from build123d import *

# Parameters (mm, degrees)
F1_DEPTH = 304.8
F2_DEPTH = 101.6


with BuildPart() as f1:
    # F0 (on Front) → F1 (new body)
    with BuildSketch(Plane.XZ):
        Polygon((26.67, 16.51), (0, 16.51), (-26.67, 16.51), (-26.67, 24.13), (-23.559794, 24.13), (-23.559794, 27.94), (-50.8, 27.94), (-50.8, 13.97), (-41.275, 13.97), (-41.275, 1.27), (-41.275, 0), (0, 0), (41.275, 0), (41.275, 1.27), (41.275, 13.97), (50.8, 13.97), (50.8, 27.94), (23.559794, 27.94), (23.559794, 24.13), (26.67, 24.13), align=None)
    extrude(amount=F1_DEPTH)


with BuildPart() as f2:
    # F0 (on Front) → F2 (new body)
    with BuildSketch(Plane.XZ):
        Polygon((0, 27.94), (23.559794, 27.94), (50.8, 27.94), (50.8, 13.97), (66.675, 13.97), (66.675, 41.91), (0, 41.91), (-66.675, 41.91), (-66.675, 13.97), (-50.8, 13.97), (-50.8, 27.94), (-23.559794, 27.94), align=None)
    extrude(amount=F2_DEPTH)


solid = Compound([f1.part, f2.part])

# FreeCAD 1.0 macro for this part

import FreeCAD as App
import Part
import Sketcher
from FreeCAD import Vector
Q = App.Units.Quantity


def add_polygon(sketch, points):
    """Adds a closed chain of lines whose ends are joined by coincident constraints."""
    first, n = sketch.GeometryCount, len(points)
    for a, b in zip(points, points[1:] + points[:1]):
        sketch.addGeometry(Part.LineSegment(App.Vector(*a, 0), App.Vector(*b, 0)), False)
    for i in range(n):
        sketch.addConstraint(Sketcher.Constraint("Coincident", first + i, 2, first + (i + 1) % n, 1))

doc = App.newDocument("Part")
params = doc.addObject("Spreadsheet::Sheet", "Params")
for row, (alias, value) in enumerate([
    ("sketch1_width", "2.1 in"),
    ("sketch1_height", "0.3 in"),
    ("sketch1_width2", "3.25 in"),
    ("sketch1_height2", "0.15 in"),
    ("sketch1_height3", "0.55 in"),
    ("pad1_length", "12 in"),
    ("sketch2_width", "4 in"),
    ("sketch2_height", "1.1 in"),
    ("sketch2_width2", "5.25 in"),
    ("sketch2_height2", "0.55 in"),
    ("pad2_length", "4 in"),
], start=1):
    params.set(f"A{row}", alias)
    params.set(f"B{row}", "=" + value)
    params.setAlias(f"B{row}", alias)

body = doc.addObject("PartDesign::Body", "Body")

# Sketch on XZ plane
sketch1 = body.newObject("Sketcher::SketchObject", "Sketch")
sketch1.AttachmentSupport = (doc.getObject("XZ_Plane"), [""])
sketch1.MapMode = "FlatFace"
add_polygon(sketch1, [(26.7, 16.5), (-26.7, 16.5), (-26.7, 24.1), (-23.6, 24.1), (-23.6, 27.9), (-50.8, 27.9), (-50.8, 14), (-41.3, 14), (-41.3, 0), (41.3, 0), (41.3, 14), (50.8, 14), (50.8, 27.9), (23.6, 27.9), (23.6, 24.1), (26.7, 24.1)])  # lines 0-15
sketch1.addConstraint(Sketcher.Constraint("Horizontal", 0))
sketch1.addConstraint(Sketcher.Constraint("Vertical", 1))
sketch1.addConstraint(Sketcher.Constraint("Horizontal", 2))
sketch1.addConstraint(Sketcher.Constraint("Vertical", 3))
sketch1.addConstraint(Sketcher.Constraint("Horizontal", 4))
sketch1.addConstraint(Sketcher.Constraint("Vertical", 5))
sketch1.addConstraint(Sketcher.Constraint("Horizontal", 6))
sketch1.addConstraint(Sketcher.Constraint("Vertical", 7))
sketch1.addConstraint(Sketcher.Constraint("Horizontal", 8))
sketch1.addConstraint(Sketcher.Constraint("Vertical", 9))
sketch1.addConstraint(Sketcher.Constraint("Horizontal", 10))
sketch1.addConstraint(Sketcher.Constraint("Vertical", 11))
sketch1.addConstraint(Sketcher.Constraint("Horizontal", 12))
sketch1.addConstraint(Sketcher.Constraint("Vertical", 13))
sketch1.addConstraint(Sketcher.Constraint("Horizontal", 14))
sketch1.addConstraint(Sketcher.Constraint("Vertical", 15))
sketch1.addConstraint(Sketcher.Constraint("Symmetric", 7, 2, 8, 2, -1, 1))
sketch1.addConstraint(Sketcher.Constraint("Symmetric", 5, 2, 10, 2, -2))
sketch1.addConstraint(Sketcher.Constraint("Symmetric", 3, 2, 12, 2, -2))
sketch1.addConstraint(Sketcher.Constraint("Symmetric", 1, 2, 14, 2, -2))
sketch1.addConstraint(Sketcher.Constraint("Equal", 5, 7))
sketch1.addConstraint(Sketcher.Constraint("DistanceX", 0, 2, 0, 1, Q("2.1 in")))
sketch1.addConstraint(Sketcher.Constraint("DistanceY", 1, 1, 1, 2, Q("0.3 in")))
sketch1.addConstraint(Sketcher.Constraint("DistanceX", 4, 2, -1, 1, Q("2 in")))
sketch1.addConstraint(Sketcher.Constraint("DistanceX", 8, 1, 8, 2, Q("3.25 in")))
sketch1.addConstraint(Sketcher.Constraint("DistanceY", 3, 1, 3, 2, Q("0.15 in")))
sketch1.addConstraint(Sketcher.Constraint("DistanceY", 5, 2, 5, 1, Q("0.55 in")))
sketch1.addConstraint(Sketcher.Constraint("DistanceX", 2, 1, 2, 2, Q("3.110206 mm")))
sketch1.setExpression("Constraints[37]", "Params.sketch1_width")
sketch1.setExpression("Constraints[38]", "Params.sketch1_height")
sketch1.setExpression("Constraints[40]", "Params.sketch1_width2")
sketch1.setExpression("Constraints[41]", "Params.sketch1_height2")
sketch1.setExpression("Constraints[42]", "Params.sketch1_height3")
pad1 = body.newObject("PartDesign::Pad", "Pad")
pad1.Profile = sketch1
pad1.setExpression("Length", "Params.pad1_length")
body2 = doc.addObject("PartDesign::Body", "Body001")

# Sketch on XZ plane
sketch2 = body2.newObject("Sketcher::SketchObject", "Sketch001")
sketch2.AttachmentSupport = (doc.getObject("XZ_Plane001"), [""])
sketch2.MapMode = "FlatFace"
add_polygon(sketch2, [(51, 28), (51, 14), (67, 14), (67, 42), (-67, 42), (-67, 14), (-51, 14), (-51, 28)])  # lines 0-7
sketch2.addConstraint(Sketcher.Constraint("Vertical", 0))
sketch2.addConstraint(Sketcher.Constraint("Horizontal", 1))
sketch2.addConstraint(Sketcher.Constraint("Vertical", 2))
sketch2.addConstraint(Sketcher.Constraint("Horizontal", 3))
sketch2.addConstraint(Sketcher.Constraint("Vertical", 4))
sketch2.addConstraint(Sketcher.Constraint("Horizontal", 5))
sketch2.addConstraint(Sketcher.Constraint("Vertical", 6))
sketch2.addConstraint(Sketcher.Constraint("Horizontal", 7))
sketch2.addConstraint(Sketcher.Constraint("Symmetric", 1, 2, 4, 2, -2))
sketch2.addConstraint(Sketcher.Constraint("Equal", 1, 5))
sketch2.addConstraint(Sketcher.Constraint("DistanceX", 7, 1, 7, 2, Q("4 in")))
sketch2.addConstraint(Sketcher.Constraint("DistanceY", 2, 1, 2, 2, Q("1.1 in")))
sketch2.addConstraint(Sketcher.Constraint("DistanceX", 3, 2, 3, 1, Q("5.25 in")))
sketch2.addConstraint(Sketcher.Constraint("DistanceY", 0, 2, 0, 1, Q("0.55 in")))
sketch2.addConstraint(Sketcher.Constraint("DistanceY", -1, 1, 6, 2, Q("1.1 in")))
sketch2.setExpression("Constraints[18]", "Params.sketch2_width")
sketch2.setExpression("Constraints[19]", "Params.sketch2_height")
sketch2.setExpression("Constraints[20]", "Params.sketch2_width2")
sketch2.setExpression("Constraints[21]", "Params.sketch2_height2")
pad2 = body2.newObject("PartDesign::Pad", "Pad001")
pad2.Profile = sketch2
pad2.setExpression("Length", "Params.pad2_length")

doc.recompute()
